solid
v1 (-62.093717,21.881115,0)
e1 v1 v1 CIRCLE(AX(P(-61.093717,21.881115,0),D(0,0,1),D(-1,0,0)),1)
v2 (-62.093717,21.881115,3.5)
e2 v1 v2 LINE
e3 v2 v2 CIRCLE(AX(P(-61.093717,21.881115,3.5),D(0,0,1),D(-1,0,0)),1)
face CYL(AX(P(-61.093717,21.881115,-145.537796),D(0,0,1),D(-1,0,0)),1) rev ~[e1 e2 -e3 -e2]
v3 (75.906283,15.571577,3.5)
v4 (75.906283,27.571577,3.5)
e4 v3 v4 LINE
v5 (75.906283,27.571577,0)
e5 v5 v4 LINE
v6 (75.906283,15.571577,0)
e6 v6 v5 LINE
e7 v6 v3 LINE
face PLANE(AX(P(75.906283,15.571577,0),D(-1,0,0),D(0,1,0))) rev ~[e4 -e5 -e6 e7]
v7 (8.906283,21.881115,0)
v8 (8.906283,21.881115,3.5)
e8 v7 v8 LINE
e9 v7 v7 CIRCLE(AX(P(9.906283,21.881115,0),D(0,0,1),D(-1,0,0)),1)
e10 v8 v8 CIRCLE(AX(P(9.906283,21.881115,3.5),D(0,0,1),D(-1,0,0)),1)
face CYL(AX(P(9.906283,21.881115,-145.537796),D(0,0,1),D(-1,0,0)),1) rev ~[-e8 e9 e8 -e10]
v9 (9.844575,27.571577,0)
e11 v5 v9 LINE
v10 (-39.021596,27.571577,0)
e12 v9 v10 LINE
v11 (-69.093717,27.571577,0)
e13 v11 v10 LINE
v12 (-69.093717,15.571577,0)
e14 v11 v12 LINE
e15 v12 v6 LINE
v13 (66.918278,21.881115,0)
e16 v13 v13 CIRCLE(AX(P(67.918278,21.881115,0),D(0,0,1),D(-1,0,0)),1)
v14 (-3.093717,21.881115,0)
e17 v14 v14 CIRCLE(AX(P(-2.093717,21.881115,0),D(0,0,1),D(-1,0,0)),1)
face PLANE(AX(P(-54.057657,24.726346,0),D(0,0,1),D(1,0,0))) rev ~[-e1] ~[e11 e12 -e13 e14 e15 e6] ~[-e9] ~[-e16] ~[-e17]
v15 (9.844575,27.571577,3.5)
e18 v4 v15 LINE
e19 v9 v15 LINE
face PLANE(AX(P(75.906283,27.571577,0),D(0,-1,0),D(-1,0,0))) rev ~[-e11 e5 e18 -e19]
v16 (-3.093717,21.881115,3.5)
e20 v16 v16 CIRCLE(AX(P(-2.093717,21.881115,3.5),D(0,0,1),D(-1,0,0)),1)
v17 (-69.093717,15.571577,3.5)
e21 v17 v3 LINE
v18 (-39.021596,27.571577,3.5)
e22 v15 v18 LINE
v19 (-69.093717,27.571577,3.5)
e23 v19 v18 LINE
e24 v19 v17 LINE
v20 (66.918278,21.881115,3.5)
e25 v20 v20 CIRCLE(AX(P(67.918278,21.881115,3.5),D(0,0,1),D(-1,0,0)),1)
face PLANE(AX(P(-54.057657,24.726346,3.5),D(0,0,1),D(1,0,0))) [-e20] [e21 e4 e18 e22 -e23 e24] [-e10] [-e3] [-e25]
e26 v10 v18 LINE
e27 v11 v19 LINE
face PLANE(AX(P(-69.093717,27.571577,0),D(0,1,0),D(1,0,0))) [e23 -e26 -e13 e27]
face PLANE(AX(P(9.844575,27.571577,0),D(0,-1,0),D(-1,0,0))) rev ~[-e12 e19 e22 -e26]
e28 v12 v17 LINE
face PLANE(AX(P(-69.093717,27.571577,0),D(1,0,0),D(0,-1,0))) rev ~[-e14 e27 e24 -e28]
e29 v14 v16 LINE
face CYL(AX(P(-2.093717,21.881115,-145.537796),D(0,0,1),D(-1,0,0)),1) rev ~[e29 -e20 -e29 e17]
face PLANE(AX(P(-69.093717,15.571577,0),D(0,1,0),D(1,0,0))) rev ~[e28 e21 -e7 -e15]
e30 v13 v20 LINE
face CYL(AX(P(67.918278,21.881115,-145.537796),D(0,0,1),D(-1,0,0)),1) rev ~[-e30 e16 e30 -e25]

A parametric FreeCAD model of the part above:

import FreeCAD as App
import Part
import Sketcher

V = App.Vector


def add_polygon(sketch, points):
    """Adds a closed chain of lines whose ends are joined by coincident constraints."""
    first, n = sketch.GeometryCount, len(points)
    for a, b in zip(points, points[1:] + points[:1]):
        sketch.addGeometry(Part.LineSegment(App.Vector(*a, 0), App.Vector(*b, 0)), False)
    for i in range(n):
        sketch.addConstraint(Sketcher.Constraint("Coincident", first + i, 2, first + (i + 1) % n, 1))

doc = App.newDocument("Part")
body = doc.addObject("PartDesign::Body", "Body")

sketch1 = body.newObject("Sketcher::SketchObject", "Sketch")
sketch1.AttachmentSupport = (doc.getObject("XY_Plane"), [""])
sketch1.MapMode = "FlatFace"
add_polygon(sketch1, [(-69.093717, 27.571577), (-69.093717, 15.571577), (75.906283, 15.571577), (75.906283, 27.571577), (9.844575, 27.571577), (-39.021596, 27.571577)])
sketch1.addConstraint(Sketcher.Constraint("Vertical", 0))
sketch1.addConstraint(Sketcher.Constraint("Horizontal", 1))
sketch1.addConstraint(Sketcher.Constraint("Vertical", 2))
sketch1.addConstraint(Sketcher.Constraint("Horizontal", 3))
sketch1.addConstraint(Sketcher.Constraint("Horizontal", 4))
sketch1.addConstraint(Sketcher.Constraint("Horizontal", 5))
sketch1.addConstraint(Sketcher.Constraint("DistanceX", 1, 1, 1, 2, 145.0))
sketch1.addConstraint(Sketcher.Constraint("DistanceY", 0, 2, 0, 1, 12.0))
sketch1.addConstraint(Sketcher.Constraint("DistanceX", 4, 2, 4, 1, 48.866171))
sketch1.addConstraint(Sketcher.Constraint("DistanceX", 5, 2, 5, 1, 30.072121))
sketch1.addConstraint(Sketcher.Constraint("DistanceX", 0, 2, -1, 1, 69.093717))
sketch1.addConstraint(Sketcher.Constraint("DistanceY", -1, 1, 0, 2, 15.571577))
pad1 = body.newObject("PartDesign::Pad", "Pad")
pad1.Profile = sketch1
pad1.Length = 3.5

sketch2 = body.newObject("Sketcher::SketchObject", "Sketch001")
sketch2.AttachmentSupport = (doc.getObject("XY_Plane"), [""])
sketch2.MapMode = "FlatFace"
sketch2.addGeometry(Part.Circle(V(-61.093717, 21.881115, 0), V(0, 0, 1), 1), False)
sketch2.addGeometry(Part.Circle(V(67.918278, 21.881115, 0), V(0, 0, 1), 1), False)
sketch2.addGeometry(Part.Circle(V(-2.093717, 21.881115, 0), V(0, 0, 1), 1), False)
sketch2.addGeometry(Part.Circle(V(9.906283, 21.881115, 0), V(0, 0, 1), 1), False)
sketch2.addConstraint(Sketcher.Constraint("Equal", 0, 1))
sketch2.addConstraint(Sketcher.Constraint("Equal", 1, 2))
sketch2.addConstraint(Sketcher.Constraint("Equal", 2, 3))
sketch2.addConstraint(Sketcher.Constraint("Horizontal", 0, 3, 1, 3))
sketch2.addConstraint(Sketcher.Constraint("Horizontal", 1, 3, 2, 3))
sketch2.addConstraint(Sketcher.Constraint("Horizontal", 2, 3, 3, 3))
sketch2.addConstraint(Sketcher.Constraint("Diameter", 0, 2.0))
sketch2.addConstraint(Sketcher.Constraint("DistanceX", 0, 3, 2, 3, 59.0))
sketch2.addConstraint(Sketcher.Constraint("DistanceX", 2, 3, 3, 3, 12.0))
sketch2.addConstraint(Sketcher.Constraint("DistanceX", 0, 3, -1, 1, 61.093717))
sketch2.addConstraint(Sketcher.Constraint("DistanceY", -1, 1, 0, 3, 21.881115))
sketch2.addConstraint(Sketcher.Constraint("DistanceX", -1, 1, 1, 3, 67.918278))
doc.recompute()
hole = body.newObject("PartDesign::Hole", "Hole")
hole.Profile = sketch2
hole.ThreadType = "None"
hole.Diameter = 2
hole.DepthType = "ThroughAll"
hole.Reversed = True

doc.recompute()
